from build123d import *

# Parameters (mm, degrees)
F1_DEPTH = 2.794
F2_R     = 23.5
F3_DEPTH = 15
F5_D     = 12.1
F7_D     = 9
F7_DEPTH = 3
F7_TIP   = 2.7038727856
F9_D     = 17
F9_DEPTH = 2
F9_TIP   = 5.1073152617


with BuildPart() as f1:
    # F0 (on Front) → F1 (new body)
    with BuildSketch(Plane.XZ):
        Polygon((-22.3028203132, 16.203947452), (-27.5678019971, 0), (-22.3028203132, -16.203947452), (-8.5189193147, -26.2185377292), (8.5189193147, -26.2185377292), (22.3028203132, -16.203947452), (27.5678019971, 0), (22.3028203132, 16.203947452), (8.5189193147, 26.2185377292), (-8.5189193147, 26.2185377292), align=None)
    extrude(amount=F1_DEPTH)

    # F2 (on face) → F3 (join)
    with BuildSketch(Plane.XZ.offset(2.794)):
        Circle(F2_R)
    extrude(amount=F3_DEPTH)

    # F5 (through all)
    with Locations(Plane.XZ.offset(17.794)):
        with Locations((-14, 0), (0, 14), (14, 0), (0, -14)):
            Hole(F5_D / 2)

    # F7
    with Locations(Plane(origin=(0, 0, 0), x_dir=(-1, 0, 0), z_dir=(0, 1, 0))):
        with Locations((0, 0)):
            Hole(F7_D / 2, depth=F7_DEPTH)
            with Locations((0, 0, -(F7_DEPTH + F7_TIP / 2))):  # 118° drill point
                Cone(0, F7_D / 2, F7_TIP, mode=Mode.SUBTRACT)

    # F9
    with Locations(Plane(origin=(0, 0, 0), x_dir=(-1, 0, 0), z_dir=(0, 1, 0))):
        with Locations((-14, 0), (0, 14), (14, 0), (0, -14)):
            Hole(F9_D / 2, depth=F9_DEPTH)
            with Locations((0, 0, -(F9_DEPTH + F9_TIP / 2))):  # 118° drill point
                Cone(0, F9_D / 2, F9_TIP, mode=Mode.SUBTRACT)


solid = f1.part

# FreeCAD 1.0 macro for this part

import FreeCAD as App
import Part
import Sketcher

V = App.Vector
Q = App.Units.Quantity

doc = App.newDocument("Part")
body = doc.addObject("PartDesign::Body", "Body")

# Sketch on XZ plane
sketch1 = doc.addObject("Sketcher::SketchObject", "Sketch")
body.addObject(sketch1)
sketch1.AttachmentSupport = (doc.XZ_Plane, [""])
sketch1.MapMode = "FlatFace"
sketch1.addGeometry(Part.LineSegment(V(-22, 16, 0), V(-28, 0, 0)), False)
sketch1.addGeometry(Part.LineSegment(V(-28, 0, 0), V(-22, -16, 0)), False)
sketch1.addGeometry(Part.LineSegment(V(-22, -16, 0), V(-9, -26, 0)), False)
sketch1.addGeometry(Part.LineSegment(V(-9, -26, 0), V(9, -26, 0)), False)
sketch1.addGeometry(Part.LineSegment(V(9, -26, 0), V(22, -16, 0)), False)
sketch1.addGeometry(Part.LineSegment(V(22, -16, 0), V(28, 0, 0)), False)
sketch1.addGeometry(Part.LineSegment(V(28, 0, 0), V(22, 16, 0)), False)
sketch1.addGeometry(Part.LineSegment(V(22, 16, 0), V(9, 26, 0)), False)
sketch1.addGeometry(Part.LineSegment(V(9, 26, 0), V(-9, 26, 0)), False)
sketch1.addGeometry(Part.LineSegment(V(-9, 26, 0), V(-22, 16, 0)), False)
sketch1.addConstraint(Sketcher.Constraint("Coincident", 0, 2, 1, 1))
sketch1.addConstraint(Sketcher.Constraint("Coincident", 1, 2, 2, 1))
sketch1.addConstraint(Sketcher.Constraint("Coincident", 2, 2, 3, 1))
sketch1.addConstraint(Sketcher.Constraint("Coincident", 3, 2, 4, 1))
sketch1.addConstraint(Sketcher.Constraint("Coincident", 4, 2, 5, 1))
sketch1.addConstraint(Sketcher.Constraint("Coincident", 5, 2, 6, 1))
sketch1.addConstraint(Sketcher.Constraint("Coincident", 6, 2, 7, 1))
sketch1.addConstraint(Sketcher.Constraint("Coincident", 7, 2, 8, 1))
sketch1.addConstraint(Sketcher.Constraint("Coincident", 8, 2, 9, 1))
sketch1.addConstraint(Sketcher.Constraint("Coincident", 9, 2, 0, 1))
sketch1.addConstraint(Sketcher.Constraint("Horizontal", 3))
sketch1.addConstraint(Sketcher.Constraint("Horizontal", 8))
sketch1.addConstraint(Sketcher.Constraint("Symmetric", 0, 2, 5, 2, -1, 1))
sketch1.addConstraint(Sketcher.Constraint("Symmetric", 1, 2, 6, 2, -1, 1))
sketch1.addConstraint(Sketcher.Constraint("Symmetric", 2, 2, 7, 2, -1, 1))
sketch1.addConstraint(Sketcher.Constraint("Symmetric", 4, 2, 9, 2, -1, 1))
sketch1.addConstraint(Sketcher.Constraint("Symmetric", 1, 2, 4, 2, -2))
sketch1.addConstraint(Sketcher.Constraint("PointOnObject", 0, 2, -1))
sketch1.addConstraint(Sketcher.Constraint("Parallel", 4, 9))
sketch1.addConstraint(Sketcher.Constraint("Vertical", 3, 2, 7, 2))
sketch1.addConstraint(Sketcher.Constraint("Equal", 1, 2))
sketch1.addConstraint(Sketcher.Constraint("Angle", 0, Q("-108 deg")))
sketch1.addConstraint(Sketcher.Constraint("Angle", 2, Q("-36 deg")))
sketch1.addConstraint(Sketcher.Constraint("DistanceX", 3, 1, 3, 2, 17.037839))
sketch1.addConstraint(Sketcher.Constraint("DistanceX", 0, 2, -1, 1, 27.567802))
pad1 = doc.addObject("PartDesign::Pad", "Pad")
body.addObject(pad1)
pad1.Profile = sketch1
pad1.Length = 2.794

# Sketch on XZ plane
sketch2 = doc.addObject("Sketcher::SketchObject", "Sketch001")
body.addObject(sketch2)
sketch2.AttachmentSupport = (doc.XZ_Plane, [""])
sketch2.MapMode = "FlatFace"
sketch2.AttachmentOffset = App.Placement(V(0, 0, 2.794), App.Rotation())
sketch2.addGeometry(Part.Circle(V(0, 0, 0), V(0, 0, 1), 24), False)
sketch2.addConstraint(Sketcher.Constraint("Coincident", 0, 3, -1, 1))
sketch2.addConstraint(Sketcher.Constraint("Diameter", 0, 47.0))
pad2 = doc.addObject("PartDesign::Pad", "Pad001")
body.addObject(pad2)
pad2.Profile = sketch2
pad2.Length = 15

# Sketch on XZ plane
sketch3 = doc.addObject("Sketcher::SketchObject", "Sketch002")
body.addObject(sketch3)
sketch3.AttachmentSupport = (doc.XZ_Plane, [""])
sketch3.MapMode = "FlatFace"
sketch3.AttachmentOffset = App.Placement(V(0, 0, 17.794), App.Rotation())
sketch3.addGeometry(Part.Circle(V(-14, 0, 0), V(0, 0, 1), 6), False)
sketch3.addGeometry(Part.Circle(V(0, 14, 0), V(0, 0, 1), 6), False)
sketch3.addGeometry(Part.Circle(V(14, 0, 0), V(0, 0, 1), 6), False)
sketch3.addGeometry(Part.Circle(V(0, -14, 0), V(0, 0, 1), 6), False)
sketch3.addConstraint(Sketcher.Constraint("Equal", 0, 1))
sketch3.addConstraint(Sketcher.Constraint("Equal", 1, 2))
sketch3.addConstraint(Sketcher.Constraint("Equal", 2, 3))
sketch3.addConstraint(Sketcher.Constraint("Symmetric", 0, 3, 2, 3, -1, 1))
sketch3.addConstraint(Sketcher.Constraint("Symmetric", 1, 3, 3, 3, -1, 1))
sketch3.addConstraint(Sketcher.Constraint("PointOnObject", 0, 3, -1))
sketch3.addConstraint(Sketcher.Constraint("PointOnObject", 1, 3, -2))
sketch3.addConstraint(Sketcher.Constraint("Diameter", 0, 12.1))
sketch3.addConstraint(Sketcher.Constraint("DistanceX", 0, 3, -1, 1, 14.0))
sketch3.addConstraint(Sketcher.Constraint("DistanceY", -1, 1, 1, 3, 14.0))
doc.recompute()
hole = doc.addObject("PartDesign::Hole", "Hole")
body.addObject(hole)
hole.Profile = sketch3
hole.ThreadType = "None"
hole.Diameter = 12.1
hole.DepthType = "ThroughAll"

# Sketch on XZ plane
sketch4 = doc.addObject("Sketcher::SketchObject", "Sketch003")
body.addObject(sketch4)
sketch4.AttachmentSupport = (doc.XZ_Plane, [""])
sketch4.MapMode = "FlatFace"
sketch4.addGeometry(Part.Circle(V(0, 0, 0), V(0, 0, 1), 4.5), False)
sketch4.addConstraint(Sketcher.Constraint("Coincident", 0, 3, -1, 1))
sketch4.addConstraint(Sketcher.Constraint("Diameter", 0, 9.0))
doc.recompute()
hole2 = doc.addObject("PartDesign::Hole", "Hole001")
body.addObject(hole2)
hole2.Profile = sketch4
hole2.ThreadType = "None"
hole2.Diameter = 9
hole2.DepthType = "Dimension"
hole2.Depth = 3
hole2.DrillPoint = "Angled"
hole2.DrillPointAngle = 118
hole2.Reversed = True

# Sketch on XZ plane
sketch5 = doc.addObject("Sketcher::SketchObject", "Sketch004")
body.addObject(sketch5)
sketch5.AttachmentSupport = (doc.XZ_Plane, [""])
sketch5.MapMode = "FlatFace"
sketch5.addGeometry(Part.Circle(V(14, 0, 0), V(0, 0, 1), 8), False)
sketch5.addGeometry(Part.Circle(V(0, 14, 0), V(0, 0, 1), 8), False)
sketch5.addGeometry(Part.Circle(V(-14, 0, 0), V(0, 0, 1), 8), False)
sketch5.addGeometry(Part.Circle(V(0, -14, 0), V(0, 0, 1), 8), False)
sketch5.addConstraint(Sketcher.Constraint("Equal", 0, 1))
sketch5.addConstraint(Sketcher.Constraint("Equal", 1, 2))
sketch5.addConstraint(Sketcher.Constraint("Equal", 2, 3))
sketch5.addConstraint(Sketcher.Constraint("Symmetric", 0, 3, 2, 3, -1, 1))
sketch5.addConstraint(Sketcher.Constraint("Symmetric", 1, 3, 3, 3, -1, 1))
sketch5.addConstraint(Sketcher.Constraint("PointOnObject", 0, 3, -1))
sketch5.addConstraint(Sketcher.Constraint("PointOnObject", 1, 3, -2))
sketch5.addConstraint(Sketcher.Constraint("Diameter", 0, 17.0))
sketch5.addConstraint(Sketcher.Constraint("DistanceX", -1, 1, 0, 3, 14.0))
sketch5.addConstraint(Sketcher.Constraint("DistanceY", -1, 1, 1, 3, 14.0))
doc.recompute()
hole3 = doc.addObject("PartDesign::Hole", "Hole002")
body.addObject(hole3)
hole3.Profile = sketch5
hole3.ThreadType = "None"
hole3.Diameter = 17
hole3.DepthType = "Dimension"
hole3.Depth = 2
hole3.DrillPoint = "Angled"
hole3.DrillPointAngle = 118
hole3.Reversed = True

doc.recompute()
